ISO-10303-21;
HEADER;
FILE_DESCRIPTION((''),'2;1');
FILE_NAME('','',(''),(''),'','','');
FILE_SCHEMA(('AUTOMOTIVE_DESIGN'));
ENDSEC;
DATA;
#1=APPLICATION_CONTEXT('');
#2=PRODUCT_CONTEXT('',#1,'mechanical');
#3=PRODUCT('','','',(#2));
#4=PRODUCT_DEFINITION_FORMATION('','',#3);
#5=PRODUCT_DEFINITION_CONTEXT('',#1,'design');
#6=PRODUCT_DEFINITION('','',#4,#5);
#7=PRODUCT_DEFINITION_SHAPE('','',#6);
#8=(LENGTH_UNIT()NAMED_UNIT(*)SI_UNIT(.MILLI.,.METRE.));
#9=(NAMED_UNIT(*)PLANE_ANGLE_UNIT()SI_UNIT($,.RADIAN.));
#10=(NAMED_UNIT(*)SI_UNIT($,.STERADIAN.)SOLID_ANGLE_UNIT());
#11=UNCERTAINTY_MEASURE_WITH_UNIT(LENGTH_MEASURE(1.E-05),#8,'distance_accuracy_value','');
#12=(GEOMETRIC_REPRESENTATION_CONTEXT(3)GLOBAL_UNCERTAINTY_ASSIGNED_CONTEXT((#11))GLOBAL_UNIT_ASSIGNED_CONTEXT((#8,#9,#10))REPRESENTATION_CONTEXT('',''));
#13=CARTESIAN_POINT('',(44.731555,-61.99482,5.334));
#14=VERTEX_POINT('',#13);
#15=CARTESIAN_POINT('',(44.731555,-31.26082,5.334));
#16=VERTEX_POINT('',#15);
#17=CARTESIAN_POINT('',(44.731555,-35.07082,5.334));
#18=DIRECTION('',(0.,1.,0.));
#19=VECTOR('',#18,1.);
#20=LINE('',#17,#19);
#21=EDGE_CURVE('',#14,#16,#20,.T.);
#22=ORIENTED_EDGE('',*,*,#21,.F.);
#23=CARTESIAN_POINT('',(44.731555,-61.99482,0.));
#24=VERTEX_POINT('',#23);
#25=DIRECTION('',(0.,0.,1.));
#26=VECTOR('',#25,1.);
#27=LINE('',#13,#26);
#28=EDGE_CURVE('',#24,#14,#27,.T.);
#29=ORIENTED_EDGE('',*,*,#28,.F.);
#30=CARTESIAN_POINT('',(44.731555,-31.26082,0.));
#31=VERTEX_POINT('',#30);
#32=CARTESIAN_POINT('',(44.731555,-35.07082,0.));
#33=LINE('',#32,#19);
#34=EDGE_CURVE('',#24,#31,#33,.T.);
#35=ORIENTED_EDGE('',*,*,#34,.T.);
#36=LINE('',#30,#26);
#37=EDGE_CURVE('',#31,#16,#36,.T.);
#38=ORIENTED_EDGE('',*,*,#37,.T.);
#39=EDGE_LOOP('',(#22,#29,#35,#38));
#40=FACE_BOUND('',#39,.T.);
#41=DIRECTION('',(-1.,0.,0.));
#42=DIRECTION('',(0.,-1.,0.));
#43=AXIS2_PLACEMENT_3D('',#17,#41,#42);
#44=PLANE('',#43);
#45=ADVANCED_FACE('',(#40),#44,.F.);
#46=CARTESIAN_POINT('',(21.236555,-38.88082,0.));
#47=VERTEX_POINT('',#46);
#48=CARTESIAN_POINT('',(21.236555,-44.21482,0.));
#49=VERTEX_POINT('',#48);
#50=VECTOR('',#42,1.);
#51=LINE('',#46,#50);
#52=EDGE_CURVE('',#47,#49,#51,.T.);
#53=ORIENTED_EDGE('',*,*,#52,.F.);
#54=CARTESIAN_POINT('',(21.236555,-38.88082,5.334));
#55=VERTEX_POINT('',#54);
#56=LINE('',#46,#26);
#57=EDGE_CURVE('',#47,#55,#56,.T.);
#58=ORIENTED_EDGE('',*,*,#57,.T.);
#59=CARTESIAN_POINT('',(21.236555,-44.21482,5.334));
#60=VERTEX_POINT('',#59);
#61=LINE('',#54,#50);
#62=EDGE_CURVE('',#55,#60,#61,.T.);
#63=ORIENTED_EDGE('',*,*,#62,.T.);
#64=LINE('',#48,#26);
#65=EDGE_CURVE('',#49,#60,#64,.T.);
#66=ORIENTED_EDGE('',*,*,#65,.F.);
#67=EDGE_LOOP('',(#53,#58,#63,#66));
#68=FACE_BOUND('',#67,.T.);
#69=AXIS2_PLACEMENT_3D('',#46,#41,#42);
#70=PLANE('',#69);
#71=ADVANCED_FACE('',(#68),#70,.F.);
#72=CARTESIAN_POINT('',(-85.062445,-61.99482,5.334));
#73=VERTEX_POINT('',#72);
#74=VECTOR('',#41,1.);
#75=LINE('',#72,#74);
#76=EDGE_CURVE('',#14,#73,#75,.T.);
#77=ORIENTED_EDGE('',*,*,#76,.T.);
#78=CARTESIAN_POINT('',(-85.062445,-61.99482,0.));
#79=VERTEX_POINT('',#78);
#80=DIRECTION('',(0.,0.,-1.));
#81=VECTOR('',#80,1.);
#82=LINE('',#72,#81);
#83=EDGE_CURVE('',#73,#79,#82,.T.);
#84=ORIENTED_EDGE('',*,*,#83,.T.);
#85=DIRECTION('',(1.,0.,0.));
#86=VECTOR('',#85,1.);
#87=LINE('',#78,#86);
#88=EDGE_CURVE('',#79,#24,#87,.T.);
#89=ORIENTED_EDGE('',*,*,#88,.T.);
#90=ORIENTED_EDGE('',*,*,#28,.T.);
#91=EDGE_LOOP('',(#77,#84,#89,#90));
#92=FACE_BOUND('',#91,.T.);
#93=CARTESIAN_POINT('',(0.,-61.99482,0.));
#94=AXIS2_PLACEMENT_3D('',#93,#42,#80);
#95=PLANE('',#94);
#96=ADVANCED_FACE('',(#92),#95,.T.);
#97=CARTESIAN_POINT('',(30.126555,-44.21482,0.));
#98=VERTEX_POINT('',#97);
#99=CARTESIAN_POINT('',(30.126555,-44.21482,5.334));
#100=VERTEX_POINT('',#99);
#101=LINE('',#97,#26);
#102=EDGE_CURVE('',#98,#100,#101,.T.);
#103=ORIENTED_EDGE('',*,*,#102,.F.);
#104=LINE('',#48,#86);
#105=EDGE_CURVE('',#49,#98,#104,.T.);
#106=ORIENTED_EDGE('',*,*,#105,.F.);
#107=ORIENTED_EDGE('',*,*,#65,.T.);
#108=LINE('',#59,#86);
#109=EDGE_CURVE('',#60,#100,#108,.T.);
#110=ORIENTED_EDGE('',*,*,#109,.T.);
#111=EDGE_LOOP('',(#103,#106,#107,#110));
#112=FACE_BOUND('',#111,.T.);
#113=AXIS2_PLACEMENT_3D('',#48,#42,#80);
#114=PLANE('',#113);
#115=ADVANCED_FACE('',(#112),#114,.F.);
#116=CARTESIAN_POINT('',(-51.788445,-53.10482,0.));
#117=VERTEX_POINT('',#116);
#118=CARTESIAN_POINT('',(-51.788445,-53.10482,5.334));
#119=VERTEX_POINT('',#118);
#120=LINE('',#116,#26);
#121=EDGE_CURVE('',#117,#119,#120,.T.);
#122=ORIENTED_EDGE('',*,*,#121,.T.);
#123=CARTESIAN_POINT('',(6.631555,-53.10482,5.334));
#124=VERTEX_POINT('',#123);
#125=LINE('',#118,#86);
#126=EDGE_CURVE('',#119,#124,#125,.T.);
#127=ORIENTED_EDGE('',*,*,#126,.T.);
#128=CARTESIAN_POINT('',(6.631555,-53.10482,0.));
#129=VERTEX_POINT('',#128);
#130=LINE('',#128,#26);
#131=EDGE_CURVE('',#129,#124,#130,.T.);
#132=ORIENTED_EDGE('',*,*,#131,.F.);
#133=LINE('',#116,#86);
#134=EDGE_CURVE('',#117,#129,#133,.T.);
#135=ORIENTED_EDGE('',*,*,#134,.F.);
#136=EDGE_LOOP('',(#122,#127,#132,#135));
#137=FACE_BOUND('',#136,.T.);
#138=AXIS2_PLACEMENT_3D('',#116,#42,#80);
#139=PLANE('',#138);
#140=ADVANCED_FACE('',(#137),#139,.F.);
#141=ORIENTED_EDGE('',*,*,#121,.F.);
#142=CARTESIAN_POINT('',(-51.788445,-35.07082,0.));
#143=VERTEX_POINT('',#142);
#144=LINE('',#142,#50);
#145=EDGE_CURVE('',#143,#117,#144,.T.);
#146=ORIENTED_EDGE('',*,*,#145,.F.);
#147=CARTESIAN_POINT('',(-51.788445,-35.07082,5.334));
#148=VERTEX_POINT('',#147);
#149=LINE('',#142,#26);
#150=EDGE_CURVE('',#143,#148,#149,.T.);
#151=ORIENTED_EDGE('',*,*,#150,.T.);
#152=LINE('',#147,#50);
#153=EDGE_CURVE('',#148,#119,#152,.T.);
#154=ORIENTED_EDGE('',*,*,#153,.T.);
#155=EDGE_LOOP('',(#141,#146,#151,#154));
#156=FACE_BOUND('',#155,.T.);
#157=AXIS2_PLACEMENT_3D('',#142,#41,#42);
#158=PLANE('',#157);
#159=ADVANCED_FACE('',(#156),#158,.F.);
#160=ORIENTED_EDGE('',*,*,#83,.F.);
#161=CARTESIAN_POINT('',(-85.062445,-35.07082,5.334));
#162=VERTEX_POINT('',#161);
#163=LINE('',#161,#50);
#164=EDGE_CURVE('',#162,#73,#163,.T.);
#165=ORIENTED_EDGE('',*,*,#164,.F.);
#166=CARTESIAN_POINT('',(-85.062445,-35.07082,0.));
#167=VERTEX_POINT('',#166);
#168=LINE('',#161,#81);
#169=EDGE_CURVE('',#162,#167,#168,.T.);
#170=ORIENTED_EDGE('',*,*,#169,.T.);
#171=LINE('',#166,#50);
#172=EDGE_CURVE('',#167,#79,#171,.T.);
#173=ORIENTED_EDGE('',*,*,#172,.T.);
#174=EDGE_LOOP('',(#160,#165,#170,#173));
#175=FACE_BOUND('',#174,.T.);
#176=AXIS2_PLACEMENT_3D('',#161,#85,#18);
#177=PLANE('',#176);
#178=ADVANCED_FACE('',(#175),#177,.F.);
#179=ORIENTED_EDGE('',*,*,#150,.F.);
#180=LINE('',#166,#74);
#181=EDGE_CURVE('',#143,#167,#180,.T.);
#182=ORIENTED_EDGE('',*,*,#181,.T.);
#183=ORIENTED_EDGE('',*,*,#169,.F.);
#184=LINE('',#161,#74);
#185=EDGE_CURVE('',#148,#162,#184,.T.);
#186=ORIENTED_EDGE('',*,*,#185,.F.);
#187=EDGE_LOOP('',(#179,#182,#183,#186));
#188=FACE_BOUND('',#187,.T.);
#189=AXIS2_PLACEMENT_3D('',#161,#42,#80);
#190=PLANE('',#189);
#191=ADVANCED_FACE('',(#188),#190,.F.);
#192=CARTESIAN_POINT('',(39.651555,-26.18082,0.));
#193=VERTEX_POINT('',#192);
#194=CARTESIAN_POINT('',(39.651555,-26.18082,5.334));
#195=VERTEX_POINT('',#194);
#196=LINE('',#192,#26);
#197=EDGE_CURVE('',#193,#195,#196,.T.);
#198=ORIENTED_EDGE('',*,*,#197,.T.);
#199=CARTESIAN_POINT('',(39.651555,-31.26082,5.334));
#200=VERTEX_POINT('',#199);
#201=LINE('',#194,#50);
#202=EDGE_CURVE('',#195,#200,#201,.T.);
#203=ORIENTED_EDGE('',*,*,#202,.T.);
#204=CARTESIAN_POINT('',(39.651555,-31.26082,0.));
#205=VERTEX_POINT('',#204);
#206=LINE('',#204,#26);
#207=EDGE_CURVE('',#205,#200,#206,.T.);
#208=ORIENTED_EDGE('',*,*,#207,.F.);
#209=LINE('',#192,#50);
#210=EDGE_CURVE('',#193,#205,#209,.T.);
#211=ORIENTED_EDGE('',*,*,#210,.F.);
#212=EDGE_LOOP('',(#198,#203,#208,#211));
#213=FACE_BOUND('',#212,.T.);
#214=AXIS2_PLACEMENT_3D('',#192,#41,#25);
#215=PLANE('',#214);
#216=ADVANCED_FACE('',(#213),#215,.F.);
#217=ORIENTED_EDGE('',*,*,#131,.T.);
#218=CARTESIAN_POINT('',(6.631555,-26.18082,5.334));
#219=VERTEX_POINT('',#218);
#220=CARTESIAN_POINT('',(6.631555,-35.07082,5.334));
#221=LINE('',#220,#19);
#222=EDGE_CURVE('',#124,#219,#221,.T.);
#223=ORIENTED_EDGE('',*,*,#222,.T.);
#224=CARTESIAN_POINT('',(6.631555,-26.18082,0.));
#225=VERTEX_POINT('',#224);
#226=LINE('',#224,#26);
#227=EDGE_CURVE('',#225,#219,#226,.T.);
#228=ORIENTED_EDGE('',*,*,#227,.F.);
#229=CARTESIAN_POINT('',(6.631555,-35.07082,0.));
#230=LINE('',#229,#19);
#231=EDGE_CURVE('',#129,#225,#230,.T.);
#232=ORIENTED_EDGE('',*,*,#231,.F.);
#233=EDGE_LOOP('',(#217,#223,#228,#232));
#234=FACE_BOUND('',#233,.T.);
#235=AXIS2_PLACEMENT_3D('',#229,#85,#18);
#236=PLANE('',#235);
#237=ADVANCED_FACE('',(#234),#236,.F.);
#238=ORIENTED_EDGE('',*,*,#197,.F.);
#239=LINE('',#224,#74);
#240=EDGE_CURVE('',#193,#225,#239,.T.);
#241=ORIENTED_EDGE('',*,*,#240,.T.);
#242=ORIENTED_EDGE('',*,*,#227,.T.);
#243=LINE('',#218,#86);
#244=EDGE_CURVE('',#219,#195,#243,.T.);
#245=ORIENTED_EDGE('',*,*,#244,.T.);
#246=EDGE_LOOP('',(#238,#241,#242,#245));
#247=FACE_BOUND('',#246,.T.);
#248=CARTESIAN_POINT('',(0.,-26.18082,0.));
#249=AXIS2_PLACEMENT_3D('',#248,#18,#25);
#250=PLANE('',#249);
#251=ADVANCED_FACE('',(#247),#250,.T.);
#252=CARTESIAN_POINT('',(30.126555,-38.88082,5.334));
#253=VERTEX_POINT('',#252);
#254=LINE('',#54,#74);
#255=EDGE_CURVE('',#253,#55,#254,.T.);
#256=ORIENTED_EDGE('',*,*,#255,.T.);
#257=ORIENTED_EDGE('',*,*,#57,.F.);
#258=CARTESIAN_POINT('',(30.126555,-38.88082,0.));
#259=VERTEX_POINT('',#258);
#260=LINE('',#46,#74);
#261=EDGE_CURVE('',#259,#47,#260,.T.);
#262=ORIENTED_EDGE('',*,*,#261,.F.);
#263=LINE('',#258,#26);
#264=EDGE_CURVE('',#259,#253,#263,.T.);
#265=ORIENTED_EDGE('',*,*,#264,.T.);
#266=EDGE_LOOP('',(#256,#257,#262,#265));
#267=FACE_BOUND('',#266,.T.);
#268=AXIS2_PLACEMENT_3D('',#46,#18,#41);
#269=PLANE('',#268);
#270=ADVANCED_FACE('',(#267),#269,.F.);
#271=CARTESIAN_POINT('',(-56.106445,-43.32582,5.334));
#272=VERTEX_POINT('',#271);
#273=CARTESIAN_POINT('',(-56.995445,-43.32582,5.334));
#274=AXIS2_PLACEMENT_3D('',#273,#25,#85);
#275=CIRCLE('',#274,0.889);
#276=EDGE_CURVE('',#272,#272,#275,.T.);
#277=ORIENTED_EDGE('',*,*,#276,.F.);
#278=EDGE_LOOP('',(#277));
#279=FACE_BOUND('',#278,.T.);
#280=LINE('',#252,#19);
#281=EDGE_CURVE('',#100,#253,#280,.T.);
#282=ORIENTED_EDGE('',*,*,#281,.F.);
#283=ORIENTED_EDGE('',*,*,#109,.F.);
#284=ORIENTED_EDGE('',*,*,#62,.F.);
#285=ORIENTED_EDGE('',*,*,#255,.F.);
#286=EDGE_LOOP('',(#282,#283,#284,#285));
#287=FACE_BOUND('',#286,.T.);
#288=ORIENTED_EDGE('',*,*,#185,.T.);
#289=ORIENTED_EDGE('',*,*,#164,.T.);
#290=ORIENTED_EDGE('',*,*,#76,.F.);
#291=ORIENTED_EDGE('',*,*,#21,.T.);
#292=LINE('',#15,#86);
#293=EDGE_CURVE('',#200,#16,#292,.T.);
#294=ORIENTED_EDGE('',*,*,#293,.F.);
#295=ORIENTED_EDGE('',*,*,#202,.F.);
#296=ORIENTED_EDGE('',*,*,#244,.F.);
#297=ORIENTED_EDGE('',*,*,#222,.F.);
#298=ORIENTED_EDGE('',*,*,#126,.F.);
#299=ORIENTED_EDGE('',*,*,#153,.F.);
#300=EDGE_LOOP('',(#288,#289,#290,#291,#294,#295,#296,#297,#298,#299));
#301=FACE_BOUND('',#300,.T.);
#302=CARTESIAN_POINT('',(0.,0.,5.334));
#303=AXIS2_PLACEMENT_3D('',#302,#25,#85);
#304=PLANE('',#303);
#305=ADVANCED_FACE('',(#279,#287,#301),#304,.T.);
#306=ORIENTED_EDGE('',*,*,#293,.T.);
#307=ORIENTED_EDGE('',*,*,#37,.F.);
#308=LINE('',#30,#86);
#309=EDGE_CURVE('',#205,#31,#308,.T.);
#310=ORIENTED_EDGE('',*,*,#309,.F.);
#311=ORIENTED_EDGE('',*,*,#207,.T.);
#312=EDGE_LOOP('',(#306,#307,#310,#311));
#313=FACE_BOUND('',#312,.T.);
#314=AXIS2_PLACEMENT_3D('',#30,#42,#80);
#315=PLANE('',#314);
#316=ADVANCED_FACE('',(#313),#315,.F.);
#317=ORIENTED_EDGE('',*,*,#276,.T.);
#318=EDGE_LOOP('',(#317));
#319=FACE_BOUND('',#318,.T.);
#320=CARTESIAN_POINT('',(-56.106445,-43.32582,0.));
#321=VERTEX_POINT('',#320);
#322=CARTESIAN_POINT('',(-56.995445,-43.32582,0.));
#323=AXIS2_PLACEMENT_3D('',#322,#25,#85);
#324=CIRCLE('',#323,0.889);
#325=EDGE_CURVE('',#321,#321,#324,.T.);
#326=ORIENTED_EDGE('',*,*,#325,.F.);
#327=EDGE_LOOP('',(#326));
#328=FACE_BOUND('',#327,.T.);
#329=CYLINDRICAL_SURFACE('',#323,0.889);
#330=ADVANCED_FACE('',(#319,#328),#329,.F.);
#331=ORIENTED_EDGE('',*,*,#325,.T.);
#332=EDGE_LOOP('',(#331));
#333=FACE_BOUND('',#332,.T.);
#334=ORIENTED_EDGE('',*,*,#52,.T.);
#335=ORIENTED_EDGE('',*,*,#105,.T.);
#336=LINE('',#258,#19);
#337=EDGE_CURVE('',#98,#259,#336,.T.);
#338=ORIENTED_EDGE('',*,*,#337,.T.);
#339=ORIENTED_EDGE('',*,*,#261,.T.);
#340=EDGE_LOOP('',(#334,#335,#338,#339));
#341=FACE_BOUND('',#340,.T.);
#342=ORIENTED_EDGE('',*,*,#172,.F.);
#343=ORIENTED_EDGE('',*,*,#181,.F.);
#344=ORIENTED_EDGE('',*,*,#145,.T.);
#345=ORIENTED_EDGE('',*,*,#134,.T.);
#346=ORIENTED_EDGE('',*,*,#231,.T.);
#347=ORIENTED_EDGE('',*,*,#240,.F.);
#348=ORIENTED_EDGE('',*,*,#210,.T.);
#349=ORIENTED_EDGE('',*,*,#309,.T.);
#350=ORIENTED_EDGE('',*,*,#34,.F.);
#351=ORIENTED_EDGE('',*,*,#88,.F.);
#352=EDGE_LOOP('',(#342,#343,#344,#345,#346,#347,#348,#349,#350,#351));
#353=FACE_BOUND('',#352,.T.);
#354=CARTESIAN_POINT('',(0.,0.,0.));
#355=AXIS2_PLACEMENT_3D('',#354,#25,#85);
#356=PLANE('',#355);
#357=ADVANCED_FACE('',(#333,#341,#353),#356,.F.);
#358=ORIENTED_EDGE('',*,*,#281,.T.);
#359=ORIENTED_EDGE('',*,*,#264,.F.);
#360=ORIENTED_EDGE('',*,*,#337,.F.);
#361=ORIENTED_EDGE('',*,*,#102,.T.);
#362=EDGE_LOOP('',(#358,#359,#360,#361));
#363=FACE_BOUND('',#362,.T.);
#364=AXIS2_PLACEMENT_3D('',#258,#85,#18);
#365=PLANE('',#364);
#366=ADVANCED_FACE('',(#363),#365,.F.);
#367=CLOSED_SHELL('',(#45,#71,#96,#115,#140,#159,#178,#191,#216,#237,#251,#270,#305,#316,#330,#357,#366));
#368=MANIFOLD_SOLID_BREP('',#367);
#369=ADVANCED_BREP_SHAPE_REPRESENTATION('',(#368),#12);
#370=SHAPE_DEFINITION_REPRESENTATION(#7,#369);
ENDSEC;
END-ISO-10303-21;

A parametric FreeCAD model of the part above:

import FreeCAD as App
import Part
import Sketcher

V = App.Vector
Q = App.Units.Quantity


def add_polygon(sketch, points):
    """Adds a closed chain of lines whose ends are joined by coincident constraints."""
    first, n = sketch.GeometryCount, len(points)
    for a, b in zip(points, points[1:] + points[:1]):
        sketch.addGeometry(Part.LineSegment(App.Vector(*a, 0), App.Vector(*b, 0)), False)
    for i in range(n):
        sketch.addConstraint(Sketcher.Constraint("Coincident", first + i, 2, first + (i + 1) % n, 1))

doc = App.newDocument("Part")
body = doc.addObject("PartDesign::Body", "Body")

sketch1 = body.newObject("Sketcher::SketchObject", "Sketch")
sketch1.AttachmentSupport = (doc.getObject("XY_Plane"), [""])
sketch1.MapMode = "FlatFace"
add_polygon(sketch1, [(-85, -35), (-85, -59), (45, -59), (45, -35)])
sketch1.addConstraint([
    Sketcher.Constraint("Vertical", 0),
    Sketcher.Constraint("Horizontal", 1),
    Sketcher.Constraint("Vertical", 2),
    Sketcher.Constraint("Horizontal", 3),
    Sketcher.Constraint("DistanceX", 1, 1, 1, 2, Q("5.11 in")),
    Sketcher.Constraint("DistanceY", 0, 2, 0, 1, Q("0.96 in")),
    Sketcher.Constraint("DistanceY", 0, 2, -1, 1, 59.45482),
    Sketcher.Constraint("DistanceX", 0, 2, -1, 1, 85.062445),
])
pad1 = body.newObject("PartDesign::Pad", "Pad")
pad1.Profile = sketch1
pad1.Length = Q("0.21 in")

sketch2 = body.newObject("Sketcher::SketchObject", "Sketch001")
sketch2.AttachmentSupport = (doc.getObject("XY_Plane"), [""])
sketch2.MapMode = "FlatFace"
sketch2.AttachmentOffset = App.Placement(V(0, 0, 0.21 * 25.4), App.Rotation())
add_polygon(sketch2, [(-52, -35), (-52, -53), (7, -53), (7, -35)])
sketch2.addConstraint([
    Sketcher.Constraint("Vertical", 0),
    Sketcher.Constraint("Horizontal", 1),
    Sketcher.Constraint("Vertical", 2),
    Sketcher.Constraint("Horizontal", 3),
    Sketcher.Constraint("DistanceX", 1, 1, 1, 2, Q("2.3 in")),
    Sketcher.Constraint("DistanceY", 0, 2, 0, 1, Q("0.71 in")),
    Sketcher.Constraint("DistanceY", 0, 2, -1, 1, 53.10482),
    Sketcher.Constraint("DistanceX", 0, 2, -1, 1, 51.788445),
])
pocket1 = body.newObject("PartDesign::Pocket", "Pocket")
pocket1.Profile = sketch2
pocket1.Type = "ThroughAll"

sketch3 = body.newObject("Sketcher::SketchObject", "Sketch002")
sketch3.AttachmentSupport = (doc.getObject("XZ_Plane"), [""])
sketch3.MapMode = "FlatFace"
sketch3.AttachmentOffset = App.Placement(V(0, 0, 35.07082), App.Rotation())
add_polygon(sketch3, [(7, 0), (7, 5), (45, 5), (45, 0)])
sketch3.addConstraint([
    Sketcher.Constraint("Vertical", 0),
    Sketcher.Constraint("Horizontal", 1),
    Sketcher.Constraint("Vertical", 2),
    Sketcher.Constraint("Horizontal", 3),
    Sketcher.Constraint("PointOnObject", 2, 2, -1),
    Sketcher.Constraint("DistanceX", 1, 1, 1, 2, Q("1.5 in")),
    Sketcher.Constraint("DistanceY", 0, 1, 0, 2, Q("0.21 in")),
    Sketcher.Constraint("DistanceX", -1, 1, 0, 2, 6.631555),
])
pad2 = body.newObject("PartDesign::Pad", "Pad001")
pad2.Profile = sketch3
pad2.Length = Q("0.35 in")
pad2.Reversed = True

sketch4 = body.newObject("Sketcher::SketchObject", "Sketch003")
sketch4.AttachmentSupport = (doc.getObject("XY_Plane"), [""])
sketch4.MapMode = "FlatFace"
sketch4.AttachmentOffset = App.Placement(V(0, 0, 0.21 * 25.4), App.Rotation())
add_polygon(sketch4, [(40, -26), (40, -31), (45, -31), (45, -26)])
sketch4.addConstraint([
    Sketcher.Constraint("Vertical", 0),
    Sketcher.Constraint("Horizontal", 1),
    Sketcher.Constraint("Vertical", 2),
    Sketcher.Constraint("Horizontal", 3),
    Sketcher.Constraint("Equal", 3, 0),
    Sketcher.Constraint("DistanceX", 1, 1, 1, 2, Q("0.2 in")),
    Sketcher.Constraint("DistanceY", 0, 2, -1, 1, 31.26082),
    Sketcher.Constraint("DistanceX", -1, 1, 0, 2, 39.651555),
])
pocket2 = body.newObject("PartDesign::Pocket", "Pocket001")
pocket2.Profile = sketch4
pocket2.Type = "ThroughAll"

sketch5 = body.newObject("Sketcher::SketchObject", "Sketch004")
sketch5.AttachmentSupport = (doc.getObject("XY_Plane"), [""])
sketch5.MapMode = "FlatFace"
sketch5.AttachmentOffset = App.Placement(V(0, 0, 0.21 * 25.4), App.Rotation())
add_polygon(sketch5, [(21, -39), (21, -44), (30, -44), (30, -39)])
sketch5.addConstraint([
    Sketcher.Constraint("Vertical", 0),
    Sketcher.Constraint("Horizontal", 1),
    Sketcher.Constraint("Vertical", 2),
    Sketcher.Constraint("Horizontal", 3),
    Sketcher.Constraint("DistanceX", 1, 1, 1, 2, Q("0.35 in")),
    Sketcher.Constraint("DistanceY", 0, 2, 0, 1, Q("0.21 in")),
    Sketcher.Constraint("DistanceY", 0, 2, -1, 1, 44.21482),
    Sketcher.Constraint("DistanceX", -1, 1, 0, 2, 21.236555),
])
pocket3 = body.newObject("PartDesign::Pocket", "Pocket002")
pocket3.Profile = sketch5
pocket3.Type = "ThroughAll"

sketch6 = body.newObject("Sketcher::SketchObject", "Sketch005")
sketch6.AttachmentSupport = (doc.getObject("XY_Plane"), [""])
sketch6.MapMode = "FlatFace"
sketch6.AttachmentOffset = App.Placement(V(0, 0, 0.21 * 25.4), App.Rotation())
sketch6.addGeometry(Part.Circle(V(-57, -43.3, 0), V(0, 0, 1), 0.9), False)
sketch6.addConstraint([
    Sketcher.Constraint("Diameter", 0, Q("0.07 in")),
    Sketcher.Constraint("DistanceY", 0, 3, -1, 1, 43.32582),
    Sketcher.Constraint("DistanceX", 0, 3, -1, 1, 56.995445),
])
pocket4 = body.newObject("PartDesign::Pocket", "Pocket003")
pocket4.Profile = sketch6
pocket4.Type = "ThroughAll"

sketch7 = body.newObject("Sketcher::SketchObject", "Sketch006")
sketch7.AttachmentSupport = (doc.getObject("XZ_Plane"), [""])
sketch7.MapMode = "FlatFace"
sketch7.AttachmentOffset = App.Placement(V(0, 0, 59.45482), App.Rotation())
add_polygon(sketch7, [(45, 0), (45, 5), (-85, 5), (-85, 0)])
sketch7.addConstraint([
    Sketcher.Constraint("Vertical", 0),
    Sketcher.Constraint("Horizontal", 1),
    Sketcher.Constraint("Vertical", 2),
    Sketcher.Constraint("Horizontal", 3),
    Sketcher.Constraint("PointOnObject", 2, 2, -1),
    Sketcher.Constraint("DistanceX", 1, 2, 1, 1, Q("5.11 in")),
    Sketcher.Constraint("DistanceY", 0, 1, 0, 2, Q("0.21 in")),
    Sketcher.Constraint("DistanceX", -1, 1, 0, 2, 44.731555),
])
pad3 = body.newObject("PartDesign::Pad", "Pad002")
pad3.Profile = sketch7
pad3.Length = Q("0.1 in")

doc.recompute()
